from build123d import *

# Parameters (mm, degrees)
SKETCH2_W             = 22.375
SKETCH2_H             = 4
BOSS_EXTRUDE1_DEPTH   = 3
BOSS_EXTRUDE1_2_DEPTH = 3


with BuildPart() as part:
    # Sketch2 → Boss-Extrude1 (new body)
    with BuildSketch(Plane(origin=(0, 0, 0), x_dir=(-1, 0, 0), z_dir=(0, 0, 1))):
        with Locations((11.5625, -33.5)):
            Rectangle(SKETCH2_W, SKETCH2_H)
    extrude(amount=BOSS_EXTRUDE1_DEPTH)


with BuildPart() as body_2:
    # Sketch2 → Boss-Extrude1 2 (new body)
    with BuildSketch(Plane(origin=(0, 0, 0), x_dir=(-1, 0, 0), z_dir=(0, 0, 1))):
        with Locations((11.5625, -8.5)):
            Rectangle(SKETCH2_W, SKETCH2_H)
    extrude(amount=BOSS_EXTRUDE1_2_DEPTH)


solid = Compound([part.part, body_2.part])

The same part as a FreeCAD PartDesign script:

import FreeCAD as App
import Part
import Sketcher
Q = App.Units.Quantity


def add_polygon(sketch, points):
    """Adds a closed chain of lines whose ends are joined by coincident constraints."""
    first, n = sketch.GeometryCount, len(points)
    for a, b in zip(points, points[1:] + points[:1]):
        sketch.addGeometry(Part.LineSegment(App.Vector(*a, 0), App.Vector(*b, 0)), False)
    for i in range(n):
        sketch.addConstraint(Sketcher.Constraint("Coincident", first + i, 2, first + (i + 1) % n, 1))

doc = App.newDocument("Part")
body = doc.addObject("PartDesign::Body", "Body")

# Sketch on XY plane
sketch1 = doc.addObject("Sketcher::SketchObject", "Sketch")
body.addObject(sketch1)
sketch1.AttachmentSupport = (doc.XY_Plane, [""])
sketch1.MapMode = "FlatFace"
add_polygon(sketch1, [(-0.375, 31.5), (-0.375, 35.5), (-22.75, 35.5), (-22.75, 31.5)])  # lines 0-3
sketch1.addConstraint([
    Sketcher.Constraint("Vertical", 0),
    Sketcher.Constraint("Horizontal", 1),
    Sketcher.Constraint("Vertical", 2),
    Sketcher.Constraint("Horizontal", 3),
    Sketcher.Constraint("DistanceY", 0, 1, 0, 2, Q("4 mm")),
    Sketcher.Constraint("DistanceY", -1, 1, 0, 2, Q("35.5 mm")),
    Sketcher.Constraint("DistanceX", 1, 2, 1, 1, Q("22.375 mm")),
    Sketcher.Constraint("DistanceX", 1, 2, -1, 1, Q("22.75 mm")),
])
pad1 = doc.addObject("PartDesign::Pad", "Pad")
body.addObject(pad1)
pad1.Profile = sketch1
pad1.Length = 3
body2 = doc.addObject("PartDesign::Body", "Body001")

# Sketch on XY plane
sketch2 = doc.addObject("Sketcher::SketchObject", "Sketch001")
body2.addObject(sketch2)
sketch2.AttachmentSupport = (doc.getObject("XY_Plane001"), [""])
sketch2.MapMode = "FlatFace"
add_polygon(sketch2, [(-0.375, 6.5), (-0.375, 10.5), (-22.75, 10.5), (-22.75, 6.5)])  # lines 0-3
sketch2.addConstraint([
    Sketcher.Constraint("Vertical", 0),
    Sketcher.Constraint("Horizontal", 1),
    Sketcher.Constraint("Vertical", 2),
    Sketcher.Constraint("Horizontal", 3),
    Sketcher.Constraint("DistanceY", 0, 1, 0, 2, Q("4 mm")),
    Sketcher.Constraint("DistanceY", -1, 1, 0, 2, Q("10.5 mm")),
    Sketcher.Constraint("DistanceX", 1, 2, 1, 1, Q("22.375 mm")),
    Sketcher.Constraint("DistanceX", 1, 2, -1, 1, Q("22.75 mm")),
])
pad2 = doc.addObject("PartDesign::Pad", "Pad001")
body2.addObject(pad2)
pad2.Profile = sketch2
pad2.Length = 3

doc.recompute()
